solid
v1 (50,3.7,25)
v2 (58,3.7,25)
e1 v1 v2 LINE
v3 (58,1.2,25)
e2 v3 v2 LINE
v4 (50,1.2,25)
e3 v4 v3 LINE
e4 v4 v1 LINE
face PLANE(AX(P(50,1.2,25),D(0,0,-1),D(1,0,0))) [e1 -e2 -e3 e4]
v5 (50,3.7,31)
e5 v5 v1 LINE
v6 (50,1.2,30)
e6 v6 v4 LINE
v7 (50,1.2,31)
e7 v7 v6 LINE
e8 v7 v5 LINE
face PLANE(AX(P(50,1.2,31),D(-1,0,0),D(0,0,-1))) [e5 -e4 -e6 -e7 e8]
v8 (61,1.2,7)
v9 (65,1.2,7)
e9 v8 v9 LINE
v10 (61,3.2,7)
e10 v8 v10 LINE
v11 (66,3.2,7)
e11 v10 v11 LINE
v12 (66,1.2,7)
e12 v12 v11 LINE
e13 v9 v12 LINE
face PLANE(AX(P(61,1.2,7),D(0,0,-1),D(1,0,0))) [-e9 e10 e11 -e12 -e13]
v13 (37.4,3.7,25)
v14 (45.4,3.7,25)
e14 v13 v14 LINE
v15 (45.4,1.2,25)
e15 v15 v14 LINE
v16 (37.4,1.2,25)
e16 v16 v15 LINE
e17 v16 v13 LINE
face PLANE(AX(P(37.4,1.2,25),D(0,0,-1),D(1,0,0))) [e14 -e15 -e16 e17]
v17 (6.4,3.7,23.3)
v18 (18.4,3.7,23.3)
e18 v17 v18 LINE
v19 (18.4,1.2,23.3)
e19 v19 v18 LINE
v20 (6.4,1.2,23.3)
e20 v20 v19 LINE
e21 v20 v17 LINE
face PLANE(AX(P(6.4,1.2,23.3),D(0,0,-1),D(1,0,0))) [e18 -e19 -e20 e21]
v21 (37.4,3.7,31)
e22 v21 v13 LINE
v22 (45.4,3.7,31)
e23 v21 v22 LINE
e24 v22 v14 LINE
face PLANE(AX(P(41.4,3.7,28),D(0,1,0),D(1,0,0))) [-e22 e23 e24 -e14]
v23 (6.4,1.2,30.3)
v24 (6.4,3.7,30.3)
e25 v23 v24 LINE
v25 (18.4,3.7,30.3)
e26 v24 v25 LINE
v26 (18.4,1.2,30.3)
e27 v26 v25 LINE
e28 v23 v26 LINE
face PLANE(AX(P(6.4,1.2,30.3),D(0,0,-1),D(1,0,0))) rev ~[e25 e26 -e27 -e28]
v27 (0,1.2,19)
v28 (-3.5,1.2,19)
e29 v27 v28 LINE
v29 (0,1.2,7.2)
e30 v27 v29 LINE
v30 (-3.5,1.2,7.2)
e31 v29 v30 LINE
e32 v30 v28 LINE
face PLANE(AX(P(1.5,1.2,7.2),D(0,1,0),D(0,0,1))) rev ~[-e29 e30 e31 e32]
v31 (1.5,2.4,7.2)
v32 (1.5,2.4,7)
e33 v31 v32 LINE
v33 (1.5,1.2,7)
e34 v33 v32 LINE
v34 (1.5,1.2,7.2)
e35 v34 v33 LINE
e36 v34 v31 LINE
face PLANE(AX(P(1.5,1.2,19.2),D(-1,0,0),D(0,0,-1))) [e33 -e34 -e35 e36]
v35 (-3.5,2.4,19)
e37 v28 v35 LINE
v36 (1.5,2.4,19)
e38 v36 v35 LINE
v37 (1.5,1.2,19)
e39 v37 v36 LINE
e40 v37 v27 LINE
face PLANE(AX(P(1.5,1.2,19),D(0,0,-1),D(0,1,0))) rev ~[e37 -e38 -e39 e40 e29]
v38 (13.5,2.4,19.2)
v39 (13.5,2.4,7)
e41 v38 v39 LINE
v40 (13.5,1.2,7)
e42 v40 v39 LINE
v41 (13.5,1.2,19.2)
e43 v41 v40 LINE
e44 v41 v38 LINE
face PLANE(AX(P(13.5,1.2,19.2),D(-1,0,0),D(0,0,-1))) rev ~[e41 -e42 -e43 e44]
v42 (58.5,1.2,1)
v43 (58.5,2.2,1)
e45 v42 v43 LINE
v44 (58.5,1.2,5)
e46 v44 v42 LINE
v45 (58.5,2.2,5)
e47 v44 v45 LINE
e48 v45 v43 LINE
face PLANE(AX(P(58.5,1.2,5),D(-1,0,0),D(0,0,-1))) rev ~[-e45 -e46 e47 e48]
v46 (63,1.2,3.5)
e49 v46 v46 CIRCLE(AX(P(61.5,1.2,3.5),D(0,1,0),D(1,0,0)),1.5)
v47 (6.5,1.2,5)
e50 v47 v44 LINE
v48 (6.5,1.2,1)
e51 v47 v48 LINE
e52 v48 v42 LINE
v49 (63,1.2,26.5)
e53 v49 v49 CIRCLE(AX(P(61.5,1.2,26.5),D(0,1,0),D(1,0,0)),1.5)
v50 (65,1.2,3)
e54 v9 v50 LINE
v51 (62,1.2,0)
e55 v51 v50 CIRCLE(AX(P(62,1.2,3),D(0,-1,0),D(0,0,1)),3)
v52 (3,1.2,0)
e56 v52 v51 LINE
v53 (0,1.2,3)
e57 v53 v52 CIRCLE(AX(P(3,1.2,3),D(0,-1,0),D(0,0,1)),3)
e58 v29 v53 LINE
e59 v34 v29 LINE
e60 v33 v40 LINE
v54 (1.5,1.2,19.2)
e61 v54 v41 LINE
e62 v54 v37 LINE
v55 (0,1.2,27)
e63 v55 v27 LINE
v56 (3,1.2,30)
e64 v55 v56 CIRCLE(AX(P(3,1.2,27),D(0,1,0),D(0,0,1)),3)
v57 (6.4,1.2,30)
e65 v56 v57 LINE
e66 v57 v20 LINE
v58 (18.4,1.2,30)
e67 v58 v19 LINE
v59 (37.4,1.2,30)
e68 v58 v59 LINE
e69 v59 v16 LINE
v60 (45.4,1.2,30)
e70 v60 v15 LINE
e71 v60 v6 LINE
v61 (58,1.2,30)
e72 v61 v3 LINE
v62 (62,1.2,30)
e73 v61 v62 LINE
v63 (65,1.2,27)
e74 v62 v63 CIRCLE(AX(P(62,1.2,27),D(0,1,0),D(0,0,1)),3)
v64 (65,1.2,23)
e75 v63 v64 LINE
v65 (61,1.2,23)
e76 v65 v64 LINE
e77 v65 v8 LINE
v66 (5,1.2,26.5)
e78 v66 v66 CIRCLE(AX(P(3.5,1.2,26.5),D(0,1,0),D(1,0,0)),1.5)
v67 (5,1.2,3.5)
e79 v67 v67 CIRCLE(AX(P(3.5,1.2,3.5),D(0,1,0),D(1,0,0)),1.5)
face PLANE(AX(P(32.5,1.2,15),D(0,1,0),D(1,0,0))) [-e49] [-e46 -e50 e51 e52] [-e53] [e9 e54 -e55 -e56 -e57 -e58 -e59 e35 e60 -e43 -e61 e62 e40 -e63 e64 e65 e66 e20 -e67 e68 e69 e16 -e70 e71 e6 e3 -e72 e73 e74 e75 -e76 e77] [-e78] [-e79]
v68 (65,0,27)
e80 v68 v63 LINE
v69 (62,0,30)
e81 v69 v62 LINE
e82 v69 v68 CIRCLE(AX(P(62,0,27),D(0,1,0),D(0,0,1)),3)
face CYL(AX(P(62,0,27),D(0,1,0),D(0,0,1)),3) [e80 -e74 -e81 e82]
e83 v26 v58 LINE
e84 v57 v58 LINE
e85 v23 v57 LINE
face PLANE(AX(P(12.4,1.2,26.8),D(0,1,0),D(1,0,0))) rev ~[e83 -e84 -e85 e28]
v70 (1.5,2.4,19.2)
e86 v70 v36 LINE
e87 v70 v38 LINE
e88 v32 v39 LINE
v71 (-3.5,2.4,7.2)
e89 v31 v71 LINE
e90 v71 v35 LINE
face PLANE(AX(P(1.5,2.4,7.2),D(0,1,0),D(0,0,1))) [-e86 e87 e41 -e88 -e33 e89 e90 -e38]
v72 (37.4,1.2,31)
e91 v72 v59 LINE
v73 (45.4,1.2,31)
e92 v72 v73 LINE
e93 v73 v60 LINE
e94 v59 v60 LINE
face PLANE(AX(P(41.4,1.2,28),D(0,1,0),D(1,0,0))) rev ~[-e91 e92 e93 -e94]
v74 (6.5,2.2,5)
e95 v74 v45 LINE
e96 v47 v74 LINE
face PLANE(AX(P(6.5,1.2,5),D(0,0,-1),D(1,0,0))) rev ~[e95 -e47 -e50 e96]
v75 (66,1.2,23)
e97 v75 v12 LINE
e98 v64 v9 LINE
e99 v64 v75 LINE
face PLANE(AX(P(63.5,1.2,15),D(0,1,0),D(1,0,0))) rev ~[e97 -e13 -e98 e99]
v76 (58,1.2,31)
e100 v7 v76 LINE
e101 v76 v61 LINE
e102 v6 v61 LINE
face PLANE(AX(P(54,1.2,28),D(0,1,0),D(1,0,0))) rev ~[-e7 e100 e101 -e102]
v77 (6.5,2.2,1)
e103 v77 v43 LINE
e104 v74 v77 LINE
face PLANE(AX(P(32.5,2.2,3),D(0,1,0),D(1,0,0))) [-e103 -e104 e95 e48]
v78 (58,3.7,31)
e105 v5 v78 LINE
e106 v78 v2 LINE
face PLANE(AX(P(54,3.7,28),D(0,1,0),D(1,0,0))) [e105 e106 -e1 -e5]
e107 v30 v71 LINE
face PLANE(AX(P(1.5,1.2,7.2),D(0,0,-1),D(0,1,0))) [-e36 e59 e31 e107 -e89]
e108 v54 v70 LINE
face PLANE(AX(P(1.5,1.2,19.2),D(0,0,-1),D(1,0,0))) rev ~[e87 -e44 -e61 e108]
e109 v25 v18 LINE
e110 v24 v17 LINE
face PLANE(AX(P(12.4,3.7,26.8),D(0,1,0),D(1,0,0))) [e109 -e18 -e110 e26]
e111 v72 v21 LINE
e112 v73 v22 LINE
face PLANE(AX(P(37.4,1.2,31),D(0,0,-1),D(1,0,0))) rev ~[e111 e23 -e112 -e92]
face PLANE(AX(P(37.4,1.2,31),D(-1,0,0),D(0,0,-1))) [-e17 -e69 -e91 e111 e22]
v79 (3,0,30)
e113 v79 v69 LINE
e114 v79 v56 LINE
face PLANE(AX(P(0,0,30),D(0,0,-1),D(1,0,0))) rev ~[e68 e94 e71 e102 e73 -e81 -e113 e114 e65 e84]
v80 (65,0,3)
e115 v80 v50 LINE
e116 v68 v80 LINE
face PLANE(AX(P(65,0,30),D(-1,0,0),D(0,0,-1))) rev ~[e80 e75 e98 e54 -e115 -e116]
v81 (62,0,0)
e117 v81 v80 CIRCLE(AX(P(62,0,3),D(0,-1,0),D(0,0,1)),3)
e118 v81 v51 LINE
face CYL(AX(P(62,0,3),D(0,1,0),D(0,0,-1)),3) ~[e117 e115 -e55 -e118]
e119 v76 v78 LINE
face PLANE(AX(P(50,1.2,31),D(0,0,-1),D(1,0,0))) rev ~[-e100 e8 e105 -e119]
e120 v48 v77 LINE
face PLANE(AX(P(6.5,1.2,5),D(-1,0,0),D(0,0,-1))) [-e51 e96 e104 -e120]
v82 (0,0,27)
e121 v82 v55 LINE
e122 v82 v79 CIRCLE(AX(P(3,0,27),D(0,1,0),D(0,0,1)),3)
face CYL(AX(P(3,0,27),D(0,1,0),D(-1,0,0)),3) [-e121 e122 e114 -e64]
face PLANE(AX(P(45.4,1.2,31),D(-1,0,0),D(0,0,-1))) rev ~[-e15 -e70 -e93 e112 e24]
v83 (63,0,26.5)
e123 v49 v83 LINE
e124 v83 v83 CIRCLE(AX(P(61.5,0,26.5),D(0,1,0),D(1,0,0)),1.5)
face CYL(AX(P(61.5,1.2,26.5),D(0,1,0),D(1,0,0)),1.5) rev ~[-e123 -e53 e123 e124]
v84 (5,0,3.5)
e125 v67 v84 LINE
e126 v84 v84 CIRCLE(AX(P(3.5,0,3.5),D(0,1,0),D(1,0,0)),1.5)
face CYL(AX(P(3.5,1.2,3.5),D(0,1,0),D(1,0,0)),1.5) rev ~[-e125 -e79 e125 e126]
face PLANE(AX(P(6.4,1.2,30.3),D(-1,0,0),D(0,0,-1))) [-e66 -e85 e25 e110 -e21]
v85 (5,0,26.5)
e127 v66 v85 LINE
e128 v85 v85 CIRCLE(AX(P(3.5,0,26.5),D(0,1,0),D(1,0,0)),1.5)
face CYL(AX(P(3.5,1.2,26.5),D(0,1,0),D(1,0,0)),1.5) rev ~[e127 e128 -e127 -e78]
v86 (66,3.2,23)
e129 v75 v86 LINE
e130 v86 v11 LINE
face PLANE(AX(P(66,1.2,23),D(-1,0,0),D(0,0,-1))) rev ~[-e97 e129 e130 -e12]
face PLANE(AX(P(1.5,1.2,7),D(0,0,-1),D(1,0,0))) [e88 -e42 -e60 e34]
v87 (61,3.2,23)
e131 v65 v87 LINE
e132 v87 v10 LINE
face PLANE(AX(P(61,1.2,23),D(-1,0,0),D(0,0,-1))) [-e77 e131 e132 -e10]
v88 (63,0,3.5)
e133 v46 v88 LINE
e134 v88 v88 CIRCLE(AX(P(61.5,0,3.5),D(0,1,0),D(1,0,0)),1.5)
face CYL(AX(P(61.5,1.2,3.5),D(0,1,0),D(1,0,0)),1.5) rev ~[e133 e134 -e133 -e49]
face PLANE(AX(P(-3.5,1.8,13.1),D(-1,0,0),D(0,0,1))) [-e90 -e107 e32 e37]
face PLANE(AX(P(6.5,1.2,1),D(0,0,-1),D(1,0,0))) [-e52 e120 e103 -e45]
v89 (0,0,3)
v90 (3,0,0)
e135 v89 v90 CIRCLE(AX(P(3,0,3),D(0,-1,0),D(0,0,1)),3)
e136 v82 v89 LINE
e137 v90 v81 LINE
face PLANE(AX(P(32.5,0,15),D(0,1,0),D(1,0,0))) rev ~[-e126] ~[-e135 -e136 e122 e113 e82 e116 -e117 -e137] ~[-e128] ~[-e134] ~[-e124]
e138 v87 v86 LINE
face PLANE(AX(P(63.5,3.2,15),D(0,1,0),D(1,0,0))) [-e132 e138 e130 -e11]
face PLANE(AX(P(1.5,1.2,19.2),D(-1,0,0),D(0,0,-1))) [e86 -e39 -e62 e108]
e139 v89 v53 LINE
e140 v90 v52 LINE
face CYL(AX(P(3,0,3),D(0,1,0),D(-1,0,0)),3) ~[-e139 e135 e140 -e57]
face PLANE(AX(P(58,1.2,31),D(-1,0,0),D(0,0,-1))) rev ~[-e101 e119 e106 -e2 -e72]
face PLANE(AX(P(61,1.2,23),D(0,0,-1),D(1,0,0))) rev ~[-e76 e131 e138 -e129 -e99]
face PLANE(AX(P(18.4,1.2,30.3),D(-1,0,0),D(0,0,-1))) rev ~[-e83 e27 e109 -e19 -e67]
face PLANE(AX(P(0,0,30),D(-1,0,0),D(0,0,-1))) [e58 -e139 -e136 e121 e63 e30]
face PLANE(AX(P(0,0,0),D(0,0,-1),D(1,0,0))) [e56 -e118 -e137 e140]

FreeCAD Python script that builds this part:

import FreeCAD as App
import Part
import Sketcher
from FreeCAD import Vector
Q = App.Units.Quantity


def edges_at(feature, points):
    """Names of the edges that pass closest to the given points."""
    edges = feature.Shape.Edges
    near = lambda p: min(range(len(edges)), key=lambda i: edges[i].distToShape(Part.Vertex(*p))[0])
    return sorted({f"Edge{near(p) + 1}" for p in points})


def add_polygon(sketch, points):
    """Adds a closed chain of lines whose ends are joined by coincident constraints."""
    first, n = sketch.GeometryCount, len(points)
    for a, b in zip(points, points[1:] + points[:1]):
        sketch.addGeometry(Part.LineSegment(App.Vector(*a, 0), App.Vector(*b, 0)), False)
    for i in range(n):
        sketch.addConstraint(Sketcher.Constraint("Coincident", first + i, 2, first + (i + 1) % n, 1))

doc = App.newDocument("Part")
params = doc.addObject("Spreadsheet::Sheet", "Params")
for row, (alias, value) in enumerate([
    ("sketch1_width", "65 mm"),
    ("sketch1_height", "30 mm"),
    ("pad1_length", "1.2 mm"),
    ("sketch2_diameter", "3 mm"),
    ("fillet_radius", "3 mm"),
    ("sketch3_width", "12 mm"),
    ("sketch3_height", "12.2 mm"),
    ("pad2_length", "1.2 mm"),
    ("sketch4_width", "1.2 mm"),
    ("sketch4_height", "11.8 mm"),
    ("pad3_length", "5 mm"),
    ("sketch5_width", "12 mm"),
    ("sketch5_height", "7 mm"),
    ("pad4_length", "2.5 mm"),
    ("sketch6_width", "8 mm"),
    ("sketch6_height", "6 mm"),
    ("pad5_length", "2.5 mm"),
    ("sketch7_width", "5 mm"),
    ("sketch7_height", "16 mm"),
    ("pad6_length", "2 mm"),
    ("sketch8_width", "52 mm"),
    ("sketch8_height", "4 mm"),
    ("pad7_length", "1 mm"),
], start=1):
    params.set(f"A{row}", alias)
    params.set(f"B{row}", "=" + value)
    params.setAlias(f"B{row}", alias)

body = doc.addObject("PartDesign::Body", "Body")

# Sketch on XZ plane
sketch1 = body.newObject("Sketcher::SketchObject", "Sketch")
sketch1.AttachmentSupport = (doc.getObject("XZ_Plane"), [""])
sketch1.MapMode = "FlatFace"
add_polygon(sketch1, [(0, 0), (0, 30), (65, 30), (65, 0)])  # lines 0-3
sketch1.addConstraint([
    Sketcher.Constraint("Vertical", 0),
    Sketcher.Constraint("Horizontal", 1),
    Sketcher.Constraint("Vertical", 2),
    Sketcher.Constraint("Horizontal", 3),
    Sketcher.Constraint("Coincident", 3, 2, -1, 1),
    Sketcher.Constraint("DistanceX", 1, 1, 1, 2, Q("65 mm")),
    Sketcher.Constraint("DistanceY", 0, 1, 0, 2, Q("30 mm")),
])
sketch1.setExpression("Constraints[9]", "Params.sketch1_width")
sketch1.setExpression("Constraints[10]", "Params.sketch1_height")
pad1 = body.newObject("PartDesign::Pad", "Pad")
pad1.Profile = sketch1
pad1.setExpression("Length", "Params.pad1_length")
pad1.Reversed = True

# Sketch on XZ plane
sketch2 = body.newObject("Sketcher::SketchObject", "Sketch001")
sketch2.AttachmentSupport = (doc.getObject("XZ_Plane"), [""])
sketch2.MapMode = "FlatFace"
sketch2.AttachmentOffset = App.Placement(Vector(0, 0, -1.2), App.Rotation())
sketch2.addGeometry([
    Part.Circle(Vector(3.5, 26.5, 0), Vector(0, 0, 1), 1.5),
    Part.Circle(Vector(61.5, 26.5, 0), Vector(0, 0, 1), 1.5),
    Part.Circle(Vector(61.5, 3.5, 0), Vector(0, 0, 1), 1.5),
    Part.Circle(Vector(3.5, 3.5, 0), Vector(0, 0, 1), 1.5),
], False)
sketch2.addConstraint([
    Sketcher.Constraint("Equal", 0, 1),
    Sketcher.Constraint("Equal", 1, 2),
    Sketcher.Constraint("Equal", 2, 3),
    Sketcher.Constraint("Horizontal", 0, 3, 1, 3),
    Sketcher.Constraint("Horizontal", 2, 3, 3, 3),
    Sketcher.Constraint("Vertical", 1, 3, 2, 3),
    Sketcher.Constraint("Vertical", 0, 3, 3, 3),
    Sketcher.Constraint("Diameter", 0, Q("3 mm")),
    Sketcher.Constraint("DistanceX", 0, 3, 1, 3, Q("58 mm")),
    Sketcher.Constraint("DistanceY", 2, 3, 1, 3, Q("23 mm")),
    Sketcher.Constraint("DistanceX", -1, 1, 0, 3, Q("3.5 mm")),
    Sketcher.Constraint("DistanceY", -1, 1, 0, 3, Q("26.5 mm")),
])
sketch2.setExpression("Constraints[7]", "Params.sketch2_diameter")
pocket1 = body.newObject("PartDesign::Pocket", "Pocket")
pocket1.Profile = sketch2
pocket1.Type = "ThroughAll"
pocket1.Reversed = True
doc.recompute()

fillet = body.newObject("PartDesign::Fillet", "Fillet")
fillet.Base = (pocket1, edges_at(pocket1, [
    (0, 0.6, 0),
    (65, 0.6, 0),
    (65, 0.6, 30),
    (0, 0.6, 30),
]))
fillet.setExpression("Radius", "Params.fillet_radius")

# Sketch on XZ plane
sketch3 = body.newObject("Sketcher::SketchObject", "Sketch002")
sketch3.AttachmentSupport = (doc.getObject("XZ_Plane"), [""])
sketch3.MapMode = "FlatFace"
sketch3.AttachmentOffset = App.Placement(Vector(0, 0, -1.2), App.Rotation())
add_polygon(sketch3, [(2, 7), (2, 19), (14, 19), (14, 7)])  # lines 0-3
sketch3.addConstraint([
    Sketcher.Constraint("Vertical", 0),
    Sketcher.Constraint("Horizontal", 1),
    Sketcher.Constraint("Vertical", 2),
    Sketcher.Constraint("Horizontal", 3),
    Sketcher.Constraint("DistanceX", 1, 1, 1, 2, Q("12 mm")),
    Sketcher.Constraint("DistanceY", 0, 1, 0, 2, Q("12.2 mm")),
    Sketcher.Constraint("DistanceY", -1, 1, 2, 2, Q("7 mm")),
    Sketcher.Constraint("DistanceX", -1, 1, 0, 2, Q("1.5 mm")),
])
sketch3.setExpression("Constraints[8]", "Params.sketch3_width")
sketch3.setExpression("Constraints[9]", "Params.sketch3_height")
pad2 = body.newObject("PartDesign::Pad", "Pad001")
pad2.Profile = sketch3
pad2.setExpression("Length", "Params.pad2_length")
pad2.Reversed = True

# Sketch on YZ plane
sketch4 = body.newObject("Sketcher::SketchObject", "Sketch003")
sketch4.AttachmentSupport = (doc.getObject("YZ_Plane"), [""])
sketch4.MapMode = "FlatFace"
sketch4.AttachmentOffset = App.Placement(Vector(0, 0, 1.5), App.Rotation())
add_polygon(sketch4, [(2.4, 7.2), (1.2, 7.2), (1.2, 19), (2.4, 19)])  # lines 0-3
sketch4.addConstraint([
    Sketcher.Constraint("Horizontal", 0),
    Sketcher.Constraint("Vertical", 1),
    Sketcher.Constraint("Horizontal", 2),
    Sketcher.Constraint("Vertical", 3),
    Sketcher.Constraint("DistanceX", 0, 2, 0, 1, Q("1.2 mm")),
    Sketcher.Constraint("DistanceY", 1, 1, 1, 2, Q("11.8 mm")),
    Sketcher.Constraint("DistanceY", -1, 1, 1, 2, Q("19 mm")),
    Sketcher.Constraint("DistanceX", -1, 1, 0, 2, Q("1.2 mm")),
])
sketch4.setExpression("Constraints[8]", "Params.sketch4_width")
sketch4.setExpression("Constraints[9]", "Params.sketch4_height")
pad3 = body.newObject("PartDesign::Pad", "Pad002")
pad3.Profile = sketch4
pad3.setExpression("Length", "Params.pad3_length")
pad3.Reversed = True

# Sketch on XZ plane
sketch5 = body.newObject("Sketcher::SketchObject", "Sketch004")
sketch5.AttachmentSupport = (doc.getObject("XZ_Plane"), [""])
sketch5.MapMode = "FlatFace"
sketch5.AttachmentOffset = App.Placement(Vector(0, 0, -1.2), App.Rotation())
add_polygon(sketch5, [(6, 23), (6, 30), (18, 30), (18, 23)])  # lines 0-3
sketch5.addConstraint([
    Sketcher.Constraint("Vertical", 0),
    Sketcher.Constraint("Horizontal", 1),
    Sketcher.Constraint("Vertical", 2),
    Sketcher.Constraint("Horizontal", 3),
    Sketcher.Constraint("DistanceX", 1, 1, 1, 2, Q("12 mm")),
    Sketcher.Constraint("DistanceY", 0, 1, 0, 2, Q("7 mm")),
    Sketcher.Constraint("DistanceX", -1, 1, 0, 2, Q("6.4 mm")),
    Sketcher.Constraint("DistanceY", -1, 1, 0, 2, Q("30.3 mm")),
])
sketch5.setExpression("Constraints[8]", "Params.sketch5_width")
sketch5.setExpression("Constraints[9]", "Params.sketch5_height")
pad4 = body.newObject("PartDesign::Pad", "Pad003")
pad4.Profile = sketch5
pad4.setExpression("Length", "Params.pad4_length")
pad4.Reversed = True

# Sketch on XZ plane
sketch6 = body.newObject("Sketcher::SketchObject", "Sketch005")
sketch6.AttachmentSupport = (doc.getObject("XZ_Plane"), [""])
sketch6.MapMode = "FlatFace"
sketch6.AttachmentOffset = App.Placement(Vector(0, 0, -1.2), App.Rotation())
add_polygon(sketch6, [(37, 25), (37, 31), (45, 31), (45, 25)])  # lines 0-3
add_polygon(sketch6, [(50, 25), (50, 31), (58, 31), (58, 25)])  # lines 4-7
sketch6.addConstraint([
    Sketcher.Constraint("Vertical", 0),
    Sketcher.Constraint("Horizontal", 1),
    Sketcher.Constraint("Vertical", 2),
    Sketcher.Constraint("Horizontal", 3),
    Sketcher.Constraint("Vertical", 4),
    Sketcher.Constraint("Horizontal", 5),
    Sketcher.Constraint("Vertical", 6),
    Sketcher.Constraint("Horizontal", 7),
    Sketcher.Constraint("Horizontal", 1, 2, 4, 2),
    Sketcher.Constraint("Horizontal", 3, 2, 6, 2),
    Sketcher.Constraint("Equal", 3, 5),
    Sketcher.Constraint("DistanceX", 1, 1, 1, 2, Q("8 mm")),
    Sketcher.Constraint("DistanceY", 0, 1, 0, 2, Q("6 mm")),
    Sketcher.Constraint("DistanceY", -1, 1, 0, 2, Q("31 mm")),
    Sketcher.Constraint("DistanceX", -1, 1, 4, 2, Q("50 mm")),
    Sketcher.Constraint("DistanceX", -1, 1, 0, 2, Q("37.4 mm")),
])
sketch6.setExpression("Constraints[19]", "Params.sketch6_width")
sketch6.setExpression("Constraints[20]", "Params.sketch6_height")
pad5 = body.newObject("PartDesign::Pad", "Pad004")
pad5.Profile = sketch6
pad5.setExpression("Length", "Params.pad5_length")
pad5.Reversed = True

# Sketch on XZ plane
sketch7 = body.newObject("Sketcher::SketchObject", "Sketch006")
sketch7.AttachmentSupport = (doc.getObject("XZ_Plane"), [""])
sketch7.MapMode = "FlatFace"
sketch7.AttachmentOffset = App.Placement(Vector(0, 0, -1.2), App.Rotation())
add_polygon(sketch7, [(61, 7), (61, 23), (66, 23), (66, 7)])  # lines 0-3
sketch7.addConstraint([
    Sketcher.Constraint("Vertical", 0),
    Sketcher.Constraint("Horizontal", 1),
    Sketcher.Constraint("Vertical", 2),
    Sketcher.Constraint("Horizontal", 3),
    Sketcher.Constraint("DistanceX", 1, 1, 1, 2, Q("5 mm")),
    Sketcher.Constraint("DistanceY", 0, 1, 0, 2, Q("16 mm")),
    Sketcher.Constraint("DistanceX", -1, 1, 0, 2, Q("61 mm")),
    Sketcher.Constraint("DistanceY", -1, 1, 0, 2, Q("23 mm")),
])
sketch7.setExpression("Constraints[8]", "Params.sketch7_width")
sketch7.setExpression("Constraints[9]", "Params.sketch7_height")
pad6 = body.newObject("PartDesign::Pad", "Pad005")
pad6.Profile = sketch7
pad6.setExpression("Length", "Params.pad6_length")
pad6.Reversed = True

# Sketch on XZ plane
sketch8 = body.newObject("Sketcher::SketchObject", "Sketch007")
sketch8.AttachmentSupport = (doc.getObject("XZ_Plane"), [""])
sketch8.MapMode = "FlatFace"
sketch8.AttachmentOffset = App.Placement(Vector(0, 0, -1.2), App.Rotation())
add_polygon(sketch8, [(6.5, 1), (6.5, 5), (58.5, 5), (58.5, 1)])  # lines 0-3
sketch8.addConstraint([
    Sketcher.Constraint("Vertical", 0),
    Sketcher.Constraint("Horizontal", 1),
    Sketcher.Constraint("Vertical", 2),
    Sketcher.Constraint("Horizontal", 3),
    Sketcher.Constraint("DistanceX", 1, 1, 1, 2, Q("52 mm")),
    Sketcher.Constraint("DistanceY", 0, 1, 0, 2, Q("4 mm")),
    Sketcher.Constraint("DistanceY", -1, 1, 0, 2, Q("5 mm")),
    Sketcher.Constraint("DistanceX", -1, 1, 0, 2, Q("6.5 mm")),
])
sketch8.setExpression("Constraints[8]", "Params.sketch8_width")
sketch8.setExpression("Constraints[9]", "Params.sketch8_height")
pad7 = body.newObject("PartDesign::Pad", "Pad006")
pad7.Profile = sketch8
pad7.setExpression("Length", "Params.pad7_length")
pad7.Reversed = True

doc.recompute()
